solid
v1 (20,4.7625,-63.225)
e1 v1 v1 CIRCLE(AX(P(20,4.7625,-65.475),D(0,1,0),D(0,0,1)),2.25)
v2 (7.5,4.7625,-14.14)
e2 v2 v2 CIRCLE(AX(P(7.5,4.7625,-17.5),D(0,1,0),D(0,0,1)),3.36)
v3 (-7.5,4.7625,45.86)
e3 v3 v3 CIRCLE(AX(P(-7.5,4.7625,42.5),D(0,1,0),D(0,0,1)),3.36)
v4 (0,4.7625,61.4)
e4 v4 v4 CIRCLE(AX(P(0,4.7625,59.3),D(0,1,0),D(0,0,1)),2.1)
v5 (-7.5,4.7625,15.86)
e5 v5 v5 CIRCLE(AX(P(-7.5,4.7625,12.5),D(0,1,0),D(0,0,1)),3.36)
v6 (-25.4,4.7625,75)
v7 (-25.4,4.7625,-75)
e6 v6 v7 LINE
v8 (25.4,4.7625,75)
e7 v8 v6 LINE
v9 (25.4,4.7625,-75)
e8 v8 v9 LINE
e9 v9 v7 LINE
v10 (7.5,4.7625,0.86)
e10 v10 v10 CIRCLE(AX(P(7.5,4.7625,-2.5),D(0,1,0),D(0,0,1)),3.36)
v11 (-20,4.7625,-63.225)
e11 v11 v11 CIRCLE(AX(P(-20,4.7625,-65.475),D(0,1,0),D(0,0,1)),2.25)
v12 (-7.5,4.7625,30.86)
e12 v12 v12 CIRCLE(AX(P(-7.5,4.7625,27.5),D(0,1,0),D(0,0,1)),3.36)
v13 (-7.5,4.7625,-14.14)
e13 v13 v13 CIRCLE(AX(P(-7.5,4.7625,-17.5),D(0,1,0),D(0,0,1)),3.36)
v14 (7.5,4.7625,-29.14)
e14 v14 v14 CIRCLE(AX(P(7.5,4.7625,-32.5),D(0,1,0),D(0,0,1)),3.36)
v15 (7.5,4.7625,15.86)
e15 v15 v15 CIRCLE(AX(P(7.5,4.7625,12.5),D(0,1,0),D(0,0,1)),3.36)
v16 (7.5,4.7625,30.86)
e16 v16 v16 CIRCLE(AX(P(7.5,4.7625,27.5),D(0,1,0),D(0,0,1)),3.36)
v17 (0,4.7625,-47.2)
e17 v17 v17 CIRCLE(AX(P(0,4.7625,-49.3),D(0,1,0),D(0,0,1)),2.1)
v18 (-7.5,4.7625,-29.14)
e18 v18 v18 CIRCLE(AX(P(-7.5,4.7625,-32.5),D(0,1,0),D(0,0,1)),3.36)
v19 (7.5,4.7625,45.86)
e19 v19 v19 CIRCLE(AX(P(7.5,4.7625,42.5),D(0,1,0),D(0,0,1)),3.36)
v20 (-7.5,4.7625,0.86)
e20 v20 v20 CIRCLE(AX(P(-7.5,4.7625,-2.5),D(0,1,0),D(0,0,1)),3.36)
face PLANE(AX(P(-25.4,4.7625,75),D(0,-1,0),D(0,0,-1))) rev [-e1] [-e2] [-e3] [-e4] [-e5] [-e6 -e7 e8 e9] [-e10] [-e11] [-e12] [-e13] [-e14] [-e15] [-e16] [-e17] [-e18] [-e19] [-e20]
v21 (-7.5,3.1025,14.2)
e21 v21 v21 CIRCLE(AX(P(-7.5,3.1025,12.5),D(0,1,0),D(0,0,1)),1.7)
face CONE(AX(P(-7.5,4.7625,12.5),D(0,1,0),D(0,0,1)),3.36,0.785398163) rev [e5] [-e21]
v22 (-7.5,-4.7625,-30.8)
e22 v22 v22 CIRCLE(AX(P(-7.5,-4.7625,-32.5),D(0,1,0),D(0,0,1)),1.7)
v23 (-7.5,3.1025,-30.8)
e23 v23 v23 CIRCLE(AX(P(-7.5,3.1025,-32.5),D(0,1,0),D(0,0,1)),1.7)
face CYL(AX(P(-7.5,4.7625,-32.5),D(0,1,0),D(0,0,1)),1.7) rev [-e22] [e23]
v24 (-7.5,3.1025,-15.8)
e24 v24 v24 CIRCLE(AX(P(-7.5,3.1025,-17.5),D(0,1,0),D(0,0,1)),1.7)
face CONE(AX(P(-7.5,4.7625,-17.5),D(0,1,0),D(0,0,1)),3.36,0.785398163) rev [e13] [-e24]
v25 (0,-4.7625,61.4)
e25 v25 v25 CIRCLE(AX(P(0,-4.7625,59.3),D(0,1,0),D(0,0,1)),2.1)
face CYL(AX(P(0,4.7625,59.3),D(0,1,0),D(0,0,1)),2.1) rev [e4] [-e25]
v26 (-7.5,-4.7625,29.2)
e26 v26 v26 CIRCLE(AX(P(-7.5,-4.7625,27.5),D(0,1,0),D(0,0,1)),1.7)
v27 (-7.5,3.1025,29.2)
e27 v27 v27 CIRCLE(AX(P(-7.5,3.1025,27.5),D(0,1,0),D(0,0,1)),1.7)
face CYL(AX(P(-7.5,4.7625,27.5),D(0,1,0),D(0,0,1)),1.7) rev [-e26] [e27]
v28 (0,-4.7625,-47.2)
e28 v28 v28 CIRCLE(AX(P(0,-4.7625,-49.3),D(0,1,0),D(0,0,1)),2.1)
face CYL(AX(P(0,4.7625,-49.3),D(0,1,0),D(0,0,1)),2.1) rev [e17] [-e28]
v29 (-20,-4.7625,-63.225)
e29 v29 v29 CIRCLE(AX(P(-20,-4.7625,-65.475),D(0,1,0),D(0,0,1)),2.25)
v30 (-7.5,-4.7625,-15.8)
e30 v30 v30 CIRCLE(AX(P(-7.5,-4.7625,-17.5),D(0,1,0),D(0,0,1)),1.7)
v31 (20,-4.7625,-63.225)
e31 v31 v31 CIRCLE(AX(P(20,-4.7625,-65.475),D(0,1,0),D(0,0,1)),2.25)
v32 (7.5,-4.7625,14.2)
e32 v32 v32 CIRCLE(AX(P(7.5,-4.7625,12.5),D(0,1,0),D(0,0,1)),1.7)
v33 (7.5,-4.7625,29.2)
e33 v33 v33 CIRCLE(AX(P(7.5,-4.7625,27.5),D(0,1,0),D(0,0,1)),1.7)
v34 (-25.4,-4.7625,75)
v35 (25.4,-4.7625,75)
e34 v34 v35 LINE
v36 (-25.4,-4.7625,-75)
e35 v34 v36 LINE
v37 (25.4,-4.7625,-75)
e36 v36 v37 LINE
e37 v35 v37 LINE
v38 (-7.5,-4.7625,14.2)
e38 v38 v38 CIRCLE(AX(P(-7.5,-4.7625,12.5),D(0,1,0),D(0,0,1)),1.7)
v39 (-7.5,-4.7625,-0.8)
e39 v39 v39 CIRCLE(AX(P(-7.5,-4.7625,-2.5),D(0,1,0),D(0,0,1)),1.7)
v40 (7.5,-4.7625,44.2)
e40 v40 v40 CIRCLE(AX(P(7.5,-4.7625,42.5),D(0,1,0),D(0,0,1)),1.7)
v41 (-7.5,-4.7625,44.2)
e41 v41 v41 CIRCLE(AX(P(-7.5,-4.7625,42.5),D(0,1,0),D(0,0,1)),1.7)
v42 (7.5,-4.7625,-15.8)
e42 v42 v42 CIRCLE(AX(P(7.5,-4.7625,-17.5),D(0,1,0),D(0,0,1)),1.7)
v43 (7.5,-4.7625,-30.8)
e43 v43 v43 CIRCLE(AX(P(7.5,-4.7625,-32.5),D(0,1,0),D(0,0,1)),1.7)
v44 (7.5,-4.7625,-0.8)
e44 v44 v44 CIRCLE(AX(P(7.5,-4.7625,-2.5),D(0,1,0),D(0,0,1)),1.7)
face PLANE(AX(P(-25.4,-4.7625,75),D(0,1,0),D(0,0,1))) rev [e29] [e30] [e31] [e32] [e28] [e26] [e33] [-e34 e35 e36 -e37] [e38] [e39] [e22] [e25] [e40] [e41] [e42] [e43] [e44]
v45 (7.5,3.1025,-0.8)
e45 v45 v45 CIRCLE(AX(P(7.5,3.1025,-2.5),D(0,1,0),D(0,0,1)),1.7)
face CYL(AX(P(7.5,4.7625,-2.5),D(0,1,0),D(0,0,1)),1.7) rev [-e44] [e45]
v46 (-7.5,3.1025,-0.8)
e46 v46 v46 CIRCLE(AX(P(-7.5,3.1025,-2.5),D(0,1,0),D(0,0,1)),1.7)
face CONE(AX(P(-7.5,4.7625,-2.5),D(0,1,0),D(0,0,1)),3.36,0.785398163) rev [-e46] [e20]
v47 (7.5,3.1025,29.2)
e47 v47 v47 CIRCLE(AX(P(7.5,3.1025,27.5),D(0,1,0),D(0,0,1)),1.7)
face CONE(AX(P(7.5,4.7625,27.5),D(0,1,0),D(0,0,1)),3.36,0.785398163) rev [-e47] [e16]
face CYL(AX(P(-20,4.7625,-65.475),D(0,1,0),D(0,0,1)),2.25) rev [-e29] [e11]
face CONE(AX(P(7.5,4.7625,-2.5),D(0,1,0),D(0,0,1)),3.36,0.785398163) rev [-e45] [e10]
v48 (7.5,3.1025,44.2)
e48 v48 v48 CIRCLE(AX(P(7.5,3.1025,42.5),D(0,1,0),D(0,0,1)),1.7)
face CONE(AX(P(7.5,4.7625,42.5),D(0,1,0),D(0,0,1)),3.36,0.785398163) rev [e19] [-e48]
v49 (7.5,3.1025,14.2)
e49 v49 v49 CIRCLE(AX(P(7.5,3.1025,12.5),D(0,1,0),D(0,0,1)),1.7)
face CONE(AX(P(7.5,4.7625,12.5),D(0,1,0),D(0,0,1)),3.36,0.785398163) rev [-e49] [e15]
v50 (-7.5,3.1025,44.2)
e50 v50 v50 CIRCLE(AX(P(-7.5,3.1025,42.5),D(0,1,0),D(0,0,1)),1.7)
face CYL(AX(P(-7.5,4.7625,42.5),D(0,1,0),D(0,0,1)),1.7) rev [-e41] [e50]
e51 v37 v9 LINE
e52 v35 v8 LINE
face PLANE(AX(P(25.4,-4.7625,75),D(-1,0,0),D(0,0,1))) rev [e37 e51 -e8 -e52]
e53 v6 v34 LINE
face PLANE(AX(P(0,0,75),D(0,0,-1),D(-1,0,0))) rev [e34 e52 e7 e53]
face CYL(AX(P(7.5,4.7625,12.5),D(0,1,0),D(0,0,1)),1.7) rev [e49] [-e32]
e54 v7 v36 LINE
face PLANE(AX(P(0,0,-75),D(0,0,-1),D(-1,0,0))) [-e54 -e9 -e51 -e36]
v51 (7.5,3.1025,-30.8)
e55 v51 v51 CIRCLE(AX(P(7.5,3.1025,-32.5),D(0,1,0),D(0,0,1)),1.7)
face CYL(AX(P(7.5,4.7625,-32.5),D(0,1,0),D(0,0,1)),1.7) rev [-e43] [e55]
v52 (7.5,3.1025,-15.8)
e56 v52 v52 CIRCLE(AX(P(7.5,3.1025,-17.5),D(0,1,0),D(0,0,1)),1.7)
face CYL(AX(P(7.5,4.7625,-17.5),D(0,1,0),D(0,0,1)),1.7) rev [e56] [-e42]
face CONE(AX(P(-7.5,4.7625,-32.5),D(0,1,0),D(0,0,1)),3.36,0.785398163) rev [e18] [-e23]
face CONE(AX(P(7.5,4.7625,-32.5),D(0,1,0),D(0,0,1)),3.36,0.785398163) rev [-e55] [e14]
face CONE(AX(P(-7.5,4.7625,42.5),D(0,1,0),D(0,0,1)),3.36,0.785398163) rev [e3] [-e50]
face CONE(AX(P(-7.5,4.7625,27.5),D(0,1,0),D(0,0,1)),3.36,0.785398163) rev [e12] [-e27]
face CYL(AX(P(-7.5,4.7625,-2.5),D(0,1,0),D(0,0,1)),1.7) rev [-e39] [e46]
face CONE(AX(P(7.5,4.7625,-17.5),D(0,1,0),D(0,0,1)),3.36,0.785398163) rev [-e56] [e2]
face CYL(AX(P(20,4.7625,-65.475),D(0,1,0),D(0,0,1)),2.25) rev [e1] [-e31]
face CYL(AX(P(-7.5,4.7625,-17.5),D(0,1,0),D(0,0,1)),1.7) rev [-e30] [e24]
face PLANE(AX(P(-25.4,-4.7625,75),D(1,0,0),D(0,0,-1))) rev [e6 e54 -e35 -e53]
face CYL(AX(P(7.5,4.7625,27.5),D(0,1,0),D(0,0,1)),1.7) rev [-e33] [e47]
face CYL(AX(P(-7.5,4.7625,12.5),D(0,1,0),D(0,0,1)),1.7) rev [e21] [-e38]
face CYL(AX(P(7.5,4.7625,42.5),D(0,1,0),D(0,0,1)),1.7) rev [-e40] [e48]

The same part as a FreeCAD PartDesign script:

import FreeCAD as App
import Part
import Sketcher

doc = App.newDocument("Part")
params = doc.addObject("Spreadsheet::Sheet", "Params")
for row, (alias, value) in enumerate([
    ("sketch1_width", "50.8 mm"),
    ("pad1_length", "150 mm"),
    ("sketch2_diameter", "4.2 mm"),
    ("hole_diameter", "4.2 mm"),
    ("sketch3_diameter", "4.5 mm"),
    ("hole2_diameter", "4.5 mm"),
    ("sketch4_diameter", "3.4 mm"),
    ("hole3_diameter", "3.4 mm"),
    ("hole3_csink_diameter", "6.72 mm"),
    ("linearpattern_pitch", "15 mm"),
], start=1):
    params.set(f"A{row}", alias)
    params.set(f"B{row}", "=" + value)
    params.setAlias(f"B{row}", alias)

body = doc.addObject("PartDesign::Body", "Body")

# Sketch on XY plane
sketch1 = body.newObject("Sketcher::SketchObject", "Sketch")
sketch1.AttachmentSupport = (doc.getObject("XY_Plane"), [""])
sketch1.MapMode = "FlatFace"
sketch1.addGeometry(Part.LineSegment(App.Vector(-25, 5, 0), App.Vector(-25, -5, 0)), False)
sketch1.addGeometry(Part.LineSegment(App.Vector(-25, -5, 0), App.Vector(25, -5, 0)), False)
sketch1.addGeometry(Part.LineSegment(App.Vector(25, -5, 0), App.Vector(25, 5, 0)), False)
sketch1.addGeometry(Part.LineSegment(App.Vector(25, 5, 0), App.Vector(-25, 5, 0)), False)
sketch1.addConstraint(Sketcher.Constraint("Coincident", 0, 2, 1, 1))
sketch1.addConstraint(Sketcher.Constraint("Coincident", 1, 2, 2, 1))
sketch1.addConstraint(Sketcher.Constraint("Coincident", 2, 2, 3, 1))
sketch1.addConstraint(Sketcher.Constraint("Coincident", 3, 2, 0, 1))
sketch1.addConstraint(Sketcher.Constraint("Vertical", 0))
sketch1.addConstraint(Sketcher.Constraint("Horizontal", 1))
sketch1.addConstraint(Sketcher.Constraint("Vertical", 2))
sketch1.addConstraint(Sketcher.Constraint("Horizontal", 3))
sketch1.addConstraint(Sketcher.Constraint("Symmetric", 0, 2, 2, 2, -1, 1))
sketch1.addConstraint(Sketcher.Constraint("DistanceX", 1, 1, 1, 2, 50.8))
sketch1.addConstraint(Sketcher.Constraint("DistanceY", 0, 2, 0, 1, 9.525))
sketch1.setExpression("Constraints[9]", "Params.sketch1_width")
pad1 = body.newObject("PartDesign::Pad", "Pad")
pad1.Profile = sketch1
pad1.setExpression("Length", "Params.pad1_length")
pad1.Midplane = True

# Sketch on XZ plane
sketch2 = body.newObject("Sketcher::SketchObject", "Sketch001")
sketch2.AttachmentSupport = (doc.getObject("XZ_Plane"), [""])
sketch2.MapMode = "FlatFace"
sketch2.AttachmentOffset = App.Placement(App.Vector(0, 0, -4.7625), App.Rotation())
sketch2.addGeometry(Part.Circle(App.Vector(0, 59.3, 0), App.Vector(0, 0, 1), 2.1), False)
sketch2.addGeometry(Part.Circle(App.Vector(0, -49.3, 0), App.Vector(0, 0, 1), 2.1), False)
sketch2.addConstraint(Sketcher.Constraint("Equal", 0, 1))
sketch2.addConstraint(Sketcher.Constraint("PointOnObject", 0, 3, -2))
sketch2.addConstraint(Sketcher.Constraint("PointOnObject", 1, 3, -2))
sketch2.addConstraint(Sketcher.Constraint("Diameter", 0, 4.2))
sketch2.addConstraint(Sketcher.Constraint("DistanceY", -1, 1, 0, 3, 59.3))
sketch2.addConstraint(Sketcher.Constraint("DistanceY", 1, 3, -1, 1, 49.3))
sketch2.setExpression("Constraints[3]", "Params.sketch2_diameter")
doc.recompute()
hole = body.newObject("PartDesign::Hole", "Hole")
hole.Profile = sketch2
hole.ThreadType = "None"
hole.setExpression("Diameter", "Params.hole_diameter")
hole.DepthType = "ThroughAll"
hole.Reversed = True

# Sketch on XZ plane
sketch3 = body.newObject("Sketcher::SketchObject", "Sketch002")
sketch3.AttachmentSupport = (doc.getObject("XZ_Plane"), [""])
sketch3.MapMode = "FlatFace"
sketch3.AttachmentOffset = App.Placement(App.Vector(0, 0, -4.7625), App.Rotation())
sketch3.addGeometry(Part.Circle(App.Vector(-20, -65.5, 0), App.Vector(0, 0, 1), 2.2), False)
sketch3.addGeometry(Part.Circle(App.Vector(20, -65.5, 0), App.Vector(0, 0, 1), 2.2), False)
sketch3.addConstraint(Sketcher.Constraint("Equal", 0, 1))
sketch3.addConstraint(Sketcher.Constraint("Symmetric", 0, 3, 1, 3, -2))
sketch3.addConstraint(Sketcher.Constraint("Diameter", 0, 4.5))
sketch3.addConstraint(Sketcher.Constraint("DistanceX", 0, 3, -1, 1, 20.0))
sketch3.addConstraint(Sketcher.Constraint("DistanceY", 0, 3, -1, 1, 65.475))
sketch3.setExpression("Constraints[2]", "Params.sketch3_diameter")
doc.recompute()
hole2 = body.newObject("PartDesign::Hole", "Hole001")
hole2.Profile = sketch3
hole2.ThreadType = "None"
hole2.setExpression("Diameter", "Params.hole2_diameter")
hole2.DepthType = "ThroughAll"
hole2.Reversed = True

# Sketch on XZ plane
sketch4 = body.newObject("Sketcher::SketchObject", "Sketch003")
sketch4.AttachmentSupport = (doc.getObject("XZ_Plane"), [""])
sketch4.MapMode = "FlatFace"
sketch4.AttachmentOffset = App.Placement(App.Vector(0, 0, -4.7625), App.Rotation())
sketch4.addGeometry(Part.Circle(App.Vector(7.5, -32.5, 0), App.Vector(0, 0, 1), 1.7), False)
sketch4.addGeometry(Part.Circle(App.Vector(-7.5, -32.5, 0), App.Vector(0, 0, 1), 1.7), False)
sketch4.addConstraint(Sketcher.Constraint("Equal", 0, 1))
sketch4.addConstraint(Sketcher.Constraint("Symmetric", 0, 3, 1, 3, -2))
sketch4.addConstraint(Sketcher.Constraint("Diameter", 0, 3.4))
sketch4.addConstraint(Sketcher.Constraint("DistanceX", 1, 3, 0, 3, 15.0))
sketch4.addConstraint(Sketcher.Constraint("DistanceY", 0, 3, -1, 1, 32.5))
sketch4.setExpression("Constraints[2]", "Params.sketch4_diameter")
doc.recompute()
hole3 = body.newObject("PartDesign::Hole", "Hole002")
hole3.Profile = sketch4
hole3.ThreadType = "None"
hole3.setExpression("Diameter", "Params.hole3_diameter")
hole3.DepthType = "ThroughAll"
hole3.HoleCutType = "Countersink"
hole3.setExpression("HoleCutDiameter", "Params.hole3_csink_diameter")
hole3.HoleCutCountersinkAngle = 90
hole3.Reversed = True
doc.recompute()

linearpattern = body.newObject("PartDesign::LinearPattern", "LinearPattern")
linearpattern.Originals = [hole3]
linearpattern.Direction = (doc.getObject("Z_Axis"), [""])
linearpattern.Mode = "offset"
linearpattern.setExpression("Offset", "Params.linearpattern_pitch")
linearpattern.Occurrences = 6
body.Tip = linearpattern

doc.recompute()
